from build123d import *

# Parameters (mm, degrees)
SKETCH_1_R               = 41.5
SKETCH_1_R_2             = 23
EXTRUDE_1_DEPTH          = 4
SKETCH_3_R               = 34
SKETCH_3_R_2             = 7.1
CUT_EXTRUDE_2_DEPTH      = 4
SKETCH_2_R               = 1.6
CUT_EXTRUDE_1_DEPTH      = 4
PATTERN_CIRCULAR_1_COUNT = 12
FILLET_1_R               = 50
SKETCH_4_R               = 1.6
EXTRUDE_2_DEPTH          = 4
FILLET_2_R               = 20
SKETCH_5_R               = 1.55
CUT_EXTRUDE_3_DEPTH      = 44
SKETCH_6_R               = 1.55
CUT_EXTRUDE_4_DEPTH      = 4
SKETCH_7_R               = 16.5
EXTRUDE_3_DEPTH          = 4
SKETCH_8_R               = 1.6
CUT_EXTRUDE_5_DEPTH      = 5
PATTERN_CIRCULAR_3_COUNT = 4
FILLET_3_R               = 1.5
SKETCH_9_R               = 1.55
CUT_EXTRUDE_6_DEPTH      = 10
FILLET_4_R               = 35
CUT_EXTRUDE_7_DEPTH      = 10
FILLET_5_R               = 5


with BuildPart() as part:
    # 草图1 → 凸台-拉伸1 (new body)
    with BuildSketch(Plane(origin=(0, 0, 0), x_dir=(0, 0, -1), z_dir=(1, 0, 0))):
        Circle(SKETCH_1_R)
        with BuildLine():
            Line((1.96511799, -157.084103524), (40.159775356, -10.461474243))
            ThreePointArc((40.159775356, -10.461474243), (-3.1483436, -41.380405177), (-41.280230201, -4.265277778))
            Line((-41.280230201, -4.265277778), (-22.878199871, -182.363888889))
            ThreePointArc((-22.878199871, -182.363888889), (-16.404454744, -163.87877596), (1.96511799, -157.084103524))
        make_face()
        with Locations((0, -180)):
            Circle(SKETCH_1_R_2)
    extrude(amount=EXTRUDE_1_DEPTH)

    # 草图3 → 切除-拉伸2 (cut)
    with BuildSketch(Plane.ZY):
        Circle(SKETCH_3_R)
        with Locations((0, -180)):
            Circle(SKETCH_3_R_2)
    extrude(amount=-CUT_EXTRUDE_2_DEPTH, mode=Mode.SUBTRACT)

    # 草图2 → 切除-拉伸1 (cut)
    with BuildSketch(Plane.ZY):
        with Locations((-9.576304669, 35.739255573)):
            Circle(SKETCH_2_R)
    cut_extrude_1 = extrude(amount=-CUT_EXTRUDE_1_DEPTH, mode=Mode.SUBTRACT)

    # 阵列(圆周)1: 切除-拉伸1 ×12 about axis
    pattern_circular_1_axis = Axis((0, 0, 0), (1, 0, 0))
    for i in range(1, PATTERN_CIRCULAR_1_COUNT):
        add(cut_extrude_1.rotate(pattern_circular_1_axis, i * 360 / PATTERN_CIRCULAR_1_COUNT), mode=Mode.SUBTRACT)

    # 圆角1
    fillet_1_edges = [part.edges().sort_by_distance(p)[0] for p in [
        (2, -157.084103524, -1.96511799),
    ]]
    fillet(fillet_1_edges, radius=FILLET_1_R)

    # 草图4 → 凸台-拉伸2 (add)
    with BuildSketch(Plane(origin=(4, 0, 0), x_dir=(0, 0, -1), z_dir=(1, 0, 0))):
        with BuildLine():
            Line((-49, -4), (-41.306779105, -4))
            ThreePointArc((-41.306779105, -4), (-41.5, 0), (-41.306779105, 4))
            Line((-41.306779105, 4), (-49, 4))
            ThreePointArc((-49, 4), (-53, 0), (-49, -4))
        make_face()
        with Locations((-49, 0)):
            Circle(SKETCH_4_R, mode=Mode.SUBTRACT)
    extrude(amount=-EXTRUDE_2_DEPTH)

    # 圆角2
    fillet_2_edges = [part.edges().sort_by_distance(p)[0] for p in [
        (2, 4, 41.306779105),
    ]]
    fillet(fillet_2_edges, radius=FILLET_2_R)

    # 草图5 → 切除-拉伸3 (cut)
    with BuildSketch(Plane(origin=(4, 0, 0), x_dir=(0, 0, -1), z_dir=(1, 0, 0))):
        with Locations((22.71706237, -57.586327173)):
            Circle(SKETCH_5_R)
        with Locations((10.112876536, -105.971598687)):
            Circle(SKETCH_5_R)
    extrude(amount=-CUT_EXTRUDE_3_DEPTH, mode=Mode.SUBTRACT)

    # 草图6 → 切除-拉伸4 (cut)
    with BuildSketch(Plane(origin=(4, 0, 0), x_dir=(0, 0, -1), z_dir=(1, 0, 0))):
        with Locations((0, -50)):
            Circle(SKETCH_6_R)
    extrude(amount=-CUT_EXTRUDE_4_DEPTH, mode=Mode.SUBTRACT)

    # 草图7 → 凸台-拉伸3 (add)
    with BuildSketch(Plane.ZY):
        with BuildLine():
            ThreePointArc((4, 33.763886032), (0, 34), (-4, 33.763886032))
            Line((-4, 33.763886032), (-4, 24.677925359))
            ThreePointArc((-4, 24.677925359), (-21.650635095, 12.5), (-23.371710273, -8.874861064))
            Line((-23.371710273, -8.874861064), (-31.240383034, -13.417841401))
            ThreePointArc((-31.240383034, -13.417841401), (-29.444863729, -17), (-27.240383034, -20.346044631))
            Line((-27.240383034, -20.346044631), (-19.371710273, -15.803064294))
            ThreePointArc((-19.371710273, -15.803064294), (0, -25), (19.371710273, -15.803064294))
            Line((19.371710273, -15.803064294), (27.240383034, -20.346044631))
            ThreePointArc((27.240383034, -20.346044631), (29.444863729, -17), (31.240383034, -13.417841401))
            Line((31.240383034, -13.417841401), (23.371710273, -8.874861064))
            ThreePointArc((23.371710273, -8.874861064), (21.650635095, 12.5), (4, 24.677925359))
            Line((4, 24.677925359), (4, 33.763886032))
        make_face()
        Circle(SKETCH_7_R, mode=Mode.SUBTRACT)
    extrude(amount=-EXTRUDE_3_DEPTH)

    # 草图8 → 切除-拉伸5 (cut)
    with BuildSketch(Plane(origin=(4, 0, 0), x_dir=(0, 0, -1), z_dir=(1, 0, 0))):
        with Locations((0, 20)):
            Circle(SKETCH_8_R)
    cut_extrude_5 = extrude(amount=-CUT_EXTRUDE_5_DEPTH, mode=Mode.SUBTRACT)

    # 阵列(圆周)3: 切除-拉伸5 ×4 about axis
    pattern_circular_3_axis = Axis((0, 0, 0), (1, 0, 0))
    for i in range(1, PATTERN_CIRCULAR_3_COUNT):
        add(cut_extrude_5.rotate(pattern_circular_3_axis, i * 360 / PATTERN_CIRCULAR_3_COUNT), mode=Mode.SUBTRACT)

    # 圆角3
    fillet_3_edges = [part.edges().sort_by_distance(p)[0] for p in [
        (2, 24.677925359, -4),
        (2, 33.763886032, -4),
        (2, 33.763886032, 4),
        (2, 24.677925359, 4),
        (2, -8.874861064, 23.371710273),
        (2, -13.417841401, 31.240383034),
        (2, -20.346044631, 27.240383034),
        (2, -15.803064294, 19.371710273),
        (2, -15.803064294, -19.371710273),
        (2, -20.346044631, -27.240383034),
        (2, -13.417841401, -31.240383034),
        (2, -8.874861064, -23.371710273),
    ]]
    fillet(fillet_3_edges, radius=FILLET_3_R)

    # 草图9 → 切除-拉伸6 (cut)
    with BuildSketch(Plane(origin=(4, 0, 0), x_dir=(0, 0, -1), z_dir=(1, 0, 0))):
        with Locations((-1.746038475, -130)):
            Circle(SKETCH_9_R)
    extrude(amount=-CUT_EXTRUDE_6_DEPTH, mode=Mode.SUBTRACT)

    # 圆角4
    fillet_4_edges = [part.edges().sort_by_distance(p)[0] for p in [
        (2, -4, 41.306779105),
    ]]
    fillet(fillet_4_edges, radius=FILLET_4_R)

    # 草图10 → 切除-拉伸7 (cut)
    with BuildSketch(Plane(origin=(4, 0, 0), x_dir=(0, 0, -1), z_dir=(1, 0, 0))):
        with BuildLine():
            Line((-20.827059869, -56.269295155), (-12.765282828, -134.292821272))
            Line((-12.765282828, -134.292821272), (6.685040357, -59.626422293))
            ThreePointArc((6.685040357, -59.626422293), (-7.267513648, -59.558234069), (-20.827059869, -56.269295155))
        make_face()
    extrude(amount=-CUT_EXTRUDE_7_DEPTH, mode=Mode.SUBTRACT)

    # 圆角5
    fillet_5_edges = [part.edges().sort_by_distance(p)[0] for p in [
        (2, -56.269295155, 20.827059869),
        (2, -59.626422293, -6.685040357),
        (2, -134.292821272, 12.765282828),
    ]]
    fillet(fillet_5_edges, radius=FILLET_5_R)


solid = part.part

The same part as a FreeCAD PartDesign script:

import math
import FreeCAD as App
import Part
import Sketcher

V = App.Vector
Q = App.Units.Quantity


def edges_at(feature, points):
    """Names of the edges that pass closest to the given points."""
    edges = feature.Shape.Edges
    near = lambda p: min(range(len(edges)), key=lambda i: edges[i].distToShape(Part.Vertex(*p))[0])
    return sorted({f"Edge{near(p) + 1}" for p in points})

doc = App.newDocument("Part")
body = doc.addObject("PartDesign::Body", "Body")

sketch1 = body.newObject("Sketcher::SketchObject", "Sketch")
sketch1.AttachmentSupport = (doc.getObject("YZ_Plane"), [""])
sketch1.MapMode = "FlatFace"
sketch1.addGeometry([
    Part.LineSegment(V(-4.265278, 41.28023, 0), V(-182.363889, 22.8782, 0)),
    Part.ArcOfCircle(Part.Circle(V(-180, 0, 0), V(0, 0, 1), 23), math.radians(95.89915), math.radians(355.098678)),
    Part.LineSegment(V(-157.084104, -1.965118, 0), V(-10.461474, -40.159775, 0)),
    Part.ArcOfCircle(Part.Circle(V(0, 0, 0), V(0, 0, 1), 41.5), math.radians(-104.60085), math.radians(95.89915)),
], False)
sketch1.addConstraint([
    Sketcher.Constraint("Tangent", 0, 2, 1, 1),
    Sketcher.Constraint("Coincident", 1, 2, 2, 1),
    Sketcher.Constraint("Tangent", 2, 2, 3, 1),
    Sketcher.Constraint("Tangent", 3, 2, 0, 1),
    Sketcher.Constraint("Coincident", 3, 3, -1, 1),
    Sketcher.Constraint("PointOnObject", 1, 3, -1),
    Sketcher.Constraint("Radius", 1, 23.0),
    Sketcher.Constraint("Radius", 3, 41.5),
    Sketcher.Constraint("DistanceX", 1, 3, -1, 1, 180.0),
    Sketcher.Constraint("DistanceX", 1, 2, 2, 2, 146.622629),
])
pad1 = body.newObject("PartDesign::Pad", "Pad")
pad1.Profile = sketch1
pad1.Length = 4

sketch2 = body.newObject("Sketcher::SketchObject", "Sketch001")
sketch2.AttachmentSupport = (doc.getObject("YZ_Plane"), [""])
sketch2.MapMode = "FlatFace"
sketch2.addGeometry([
    Part.Circle(V(0, 0, 0), V(0, 0, 1), 34),
    Part.Circle(V(-180, 0, 0), V(0, 0, 1), 7.1),
], False)
sketch2.addConstraint([
    Sketcher.Constraint("Coincident", 0, 3, -1, 1),
    Sketcher.Constraint("PointOnObject", 1, 3, -1),
    Sketcher.Constraint("Diameter", 0, 68.0),
    Sketcher.Constraint("Diameter", 1, 14.2),
    Sketcher.Constraint("DistanceX", 1, 3, -1, 1, 180.0),
])
pocket1 = body.newObject("PartDesign::Pocket", "Pocket")
pocket1.Profile = sketch2
pocket1.Length = 4
pocket1.Reversed = True

sketch3 = body.newObject("Sketcher::SketchObject", "Sketch002")
sketch3.AttachmentSupport = (doc.getObject("YZ_Plane"), [""])
sketch3.MapMode = "FlatFace"
sketch3.addGeometry(Part.Circle(V(35.739256, -9.576305, 0), V(0, 0, 1), 1.6), False)
sketch3.addConstraint([
    Sketcher.Constraint("Diameter", 0, 3.2),
    Sketcher.Constraint("DistanceX", -1, 1, 0, 3, 35.739256),
    Sketcher.Constraint("DistanceY", 0, 3, -1, 1, 9.576305),
])
pocket2 = body.newObject("PartDesign::Pocket", "Pocket001")
pocket2.Profile = sketch3
pocket2.Length = 4
pocket2.Reversed = True
doc.recompute()

polarpattern = body.newObject("PartDesign::PolarPattern", "PolarPattern")
polarpattern.Originals = [pocket2]
polarpattern.Axis = (doc.getObject("X_Axis"), [""])
polarpattern.Angle = 360
polarpattern.Occurrences = 12
body.Tip = polarpattern
doc.recompute()

fillet = body.newObject("PartDesign::Fillet", "Fillet")
fillet.Base = (polarpattern, edges_at(polarpattern, [(2, -157.084, -1.965)]))
fillet.Radius = 50

sketch4 = body.newObject("Sketcher::SketchObject", "Sketch003")
sketch4.AttachmentSupport = (doc.getObject("YZ_Plane"), [""])
sketch4.MapMode = "FlatFace"
sketch4.AttachmentOffset = App.Placement(V(0, 0, 4), App.Rotation())
sketch4.addGeometry([
    Part.LineSegment(V(-4, 49, 0), V(-4, 41.306779, 0)),
    Part.ArcOfCircle(Part.Circle(V(0, 0, 0), V(0, 0, 1), 41.5), math.radians(84.468928), math.radians(95.531072)),
    Part.LineSegment(V(4, 41.306779, 0), V(4, 49, 0)),
    Part.ArcOfCircle(Part.Circle(V(0, 49, 0), V(0, 0, 1), 4), math.radians(0), math.radians(180)),
    Part.Circle(V(0, 49, 0), V(0, 0, 1), 1.6),
], False)
sketch4.addConstraint([
    Sketcher.Constraint("Coincident", 0, 2, 1, 2),
    Sketcher.Constraint("Coincident", 1, 1, 2, 1),
    Sketcher.Constraint("Tangent", 2, 2, 3, 1),
    Sketcher.Constraint("Tangent", 3, 2, 0, 1),
    Sketcher.Constraint("Vertical", 0),
    Sketcher.Constraint("Vertical", 2),
    Sketcher.Constraint("Coincident", 1, 3, -1, 1),
    Sketcher.Constraint("Coincident", 4, 3, 3, 3),
    Sketcher.Constraint("PointOnObject", 3, 3, -2),
    Sketcher.Constraint("Radius", 3, 4.0),
    Sketcher.Constraint("Diameter", 4, 3.2),
    Sketcher.Constraint("Radius", 1, 41.5),
    Sketcher.Constraint("DistanceY", -1, 1, 3, 3, 49.0),
])
pad2 = body.newObject("PartDesign::Pad", "Pad001")
pad2.Profile = sketch4
pad2.Length = 4
pad2.Reversed = True
doc.recompute()

fillet2 = body.newObject("PartDesign::Fillet", "Fillet001")
fillet2.Base = (pad2, edges_at(pad2, [(2, 4, 41.307)]))
fillet2.Radius = 20

sketch5 = body.newObject("Sketcher::SketchObject", "Sketch004")
sketch5.AttachmentSupport = (doc.getObject("YZ_Plane"), [""])
sketch5.MapMode = "FlatFace"
sketch5.AttachmentOffset = App.Placement(V(0, 0, 4), App.Rotation())
sketch5.addGeometry([
    Part.Circle(V(-57.586327, -22.717062, 0), V(0, 0, 1), 1.55),
    Part.Circle(V(-105.971599, -10.112877, 0), V(0, 0, 1), 1.55),
], False)
sketch5.addConstraint([
    Sketcher.Constraint("Equal", 0, 1),
    Sketcher.Constraint("Diameter", 0, 3.1),
    Sketcher.Constraint("DistanceX", 1, 3, -1, 1, 105.971599),
    Sketcher.Constraint("DistanceX", 1, 3, 0, 3, 48.385272),
    Sketcher.Constraint("DistanceY", 0, 3, -1, 1, 22.717062),
    Sketcher.Constraint("DistanceY", 1, 3, -1, 1, 10.112877),
])
pocket3 = body.newObject("PartDesign::Pocket", "Pocket002")
pocket3.Profile = sketch5
pocket3.Length = 44

sketch6 = body.newObject("Sketcher::SketchObject", "Sketch005")
sketch6.AttachmentSupport = (doc.getObject("YZ_Plane"), [""])
sketch6.MapMode = "FlatFace"
sketch6.AttachmentOffset = App.Placement(V(0, 0, 4), App.Rotation())
sketch6.addGeometry(Part.Circle(V(-50, 0, 0), V(0, 0, 1), 1.55), False)
sketch6.addConstraint([
    Sketcher.Constraint("PointOnObject", 0, 3, -1),
    Sketcher.Constraint("Diameter", 0, 3.1),
    Sketcher.Constraint("DistanceX", 0, 3, -1, 1, 50.0),
])
pocket4 = body.newObject("PartDesign::Pocket", "Pocket003")
pocket4.Profile = sketch6
pocket4.Length = 4

sketch7 = body.newObject("Sketcher::SketchObject", "Sketch006")
sketch7.AttachmentSupport = (doc.getObject("YZ_Plane"), [""])
sketch7.MapMode = "FlatFace"
sketch7.addGeometry([
    Part.ArcOfCircle(Part.Circle(V(0, 0, 0), V(0, 0, 1), 34), math.radians(-6.756327), math.radians(6.756327)),
    Part.LineSegment(V(33.763886, -4, 0), V(24.677925, -4, 0)),
    Part.ArcOfCircle(Part.Circle(V(0, 0, 0), V(0, 0, 1), 25), math.radians(-110.793104), math.radians(-9.206896)),
    Part.LineSegment(V(-8.874861, -23.37171, 0), V(-13.417841, -31.240383, 0)),
    Part.ArcOfCircle(Part.Circle(V(0, 0, 0), V(0, 0, 1), 34), math.radians(-126.756327), math.radians(-113.243673)),
    Part.LineSegment(V(-20.346045, -27.240383, 0), V(-15.803064, -19.37171, 0)),
    Part.ArcOfCircle(Part.Circle(V(0, 0, 0), V(0, 0, 1), 25), math.radians(129.206896), math.radians(230.793104)),
    Part.LineSegment(V(-15.803064, 19.37171, 0), V(-20.346045, 27.240383, 0)),
    Part.ArcOfCircle(Part.Circle(V(0, 0, 0), V(0, 0, 1), 34), math.radians(113.243673), math.radians(126.756327)),
    Part.LineSegment(V(-13.417841, 31.240383, 0), V(-8.874861, 23.37171, 0)),
    Part.ArcOfCircle(Part.Circle(V(0, 0, 0), V(0, 0, 1), 25), math.radians(9.206896), math.radians(110.793104)),
    Part.LineSegment(V(24.677925, 4, 0), V(33.763886, 4, 0)),
    Part.Circle(V(0, 0, 0), V(0, 0, 1), 16.5),
], False)
sketch7.addConstraint([
    Sketcher.Constraint("Coincident", 0, 1, 1, 1),
    Sketcher.Constraint("Coincident", 1, 2, 2, 2),
    Sketcher.Constraint("Coincident", 2, 1, 3, 1),
    Sketcher.Constraint("Coincident", 3, 2, 4, 2),
    Sketcher.Constraint("Coincident", 4, 1, 5, 1),
    Sketcher.Constraint("Coincident", 5, 2, 6, 2),
    Sketcher.Constraint("Coincident", 6, 1, 7, 1),
    Sketcher.Constraint("Coincident", 7, 2, 8, 2),
    Sketcher.Constraint("Coincident", 8, 1, 9, 1),
    Sketcher.Constraint("Coincident", 9, 2, 10, 2),
    Sketcher.Constraint("Coincident", 10, 1, 11, 1),
    Sketcher.Constraint("Coincident", 11, 2, 0, 2),
    Sketcher.Constraint("Horizontal", 1),
    Sketcher.Constraint("Horizontal", 11),
    Sketcher.Constraint("Coincident", 0, 3, -1, 1),
    Sketcher.Constraint("Coincident", 2, 3, -1, 1),
    Sketcher.Constraint("Coincident", 4, 3, -1, 1),
    Sketcher.Constraint("Coincident", 6, 3, -1, 1),
    Sketcher.Constraint("Coincident", 8, 3, -1, 1),
    Sketcher.Constraint("Coincident", 10, 3, -1, 1),
    Sketcher.Constraint("Coincident", 12, 3, -1, 1),
    Sketcher.Constraint("Equal", 0, 4),
    Sketcher.Constraint("Equal", 2, 6),
    Sketcher.Constraint("Equal", 4, 8),
    Sketcher.Constraint("Equal", 6, 10),
    Sketcher.Constraint("Parallel", 3, 5),
    Sketcher.Constraint("Parallel", 7, 9),
    Sketcher.Constraint("Vertical", 5, 2, 6, 1),
    Sketcher.Constraint("Vertical", 4, 1, 7, 2),
    Sketcher.Constraint("Vertical", 3, 2, 8, 1),
    Sketcher.Constraint("Vertical", 1, 2, 10, 1),
    Sketcher.Constraint("Equal", 3, 5),
    Sketcher.Constraint("Diameter", 12, 33.0),
    Sketcher.Constraint("Radius", 0, 34.0),
    Sketcher.Constraint("Radius", 2, 25.0),
    Sketcher.Constraint("Angle", 3, Q("-120 deg")),
    Sketcher.Constraint("DistanceY", 0, 1, -1, 1, 4.0),
    Sketcher.Constraint("DistanceY", 3, 2, 4, 1, 4.0),
])
pad3 = body.newObject("PartDesign::Pad", "Pad002")
pad3.Profile = sketch7
pad3.Length = 4

sketch8 = body.newObject("Sketcher::SketchObject", "Sketch007")
sketch8.AttachmentSupport = (doc.getObject("YZ_Plane"), [""])
sketch8.MapMode = "FlatFace"
sketch8.AttachmentOffset = App.Placement(V(0, 0, 4), App.Rotation())
sketch8.addGeometry(Part.Circle(V(20, 0, 0), V(0, 0, 1), 1.6), False)
sketch8.addConstraint([
    Sketcher.Constraint("PointOnObject", 0, 3, -1),
    Sketcher.Constraint("Diameter", 0, 3.2),
    Sketcher.Constraint("DistanceX", -1, 1, 0, 3, 20.0),
])
pocket5 = body.newObject("PartDesign::Pocket", "Pocket004")
pocket5.Profile = sketch8
pocket5.Length = 5
doc.recompute()

polarpattern2 = body.newObject("PartDesign::PolarPattern", "PolarPattern001")
polarpattern2.Originals = [pocket5]
polarpattern2.Axis = (doc.getObject("X_Axis"), [""])
polarpattern2.Angle = 360
polarpattern2.Occurrences = 4
body.Tip = polarpattern2
doc.recompute()

fillet3 = body.newObject("PartDesign::Fillet", "Fillet002")
fillet3.Base = (polarpattern2, edges_at(polarpattern2, [
    (2, 24.678, -4),
    (2, 33.764, -4),
    (2, 33.764, 4),
    (2, 24.678, 4),
    (2, -8.875, 23.372),
    (2, -13.418, 31.24),
    (2, -20.346, 27.24),
    (2, -15.803, 19.372),
    (2, -15.803, -19.372),
    (2, -20.346, -27.24),
    (2, -13.418, -31.24),
    (2, -8.875, -23.372),
]))
fillet3.Radius = 1.5

sketch9 = body.newObject("Sketcher::SketchObject", "Sketch008")
sketch9.AttachmentSupport = (doc.getObject("YZ_Plane"), [""])
sketch9.MapMode = "FlatFace"
sketch9.AttachmentOffset = App.Placement(V(0, 0, 4), App.Rotation())
sketch9.addGeometry(Part.Circle(V(-130, 1.746038, 0), V(0, 0, 1), 1.55), False)
sketch9.addConstraint([
    Sketcher.Constraint("Diameter", 0, 3.1),
    Sketcher.Constraint("DistanceX", 0, 3, -1, 1, 130.0),
    Sketcher.Constraint("DistanceY", -1, 1, 0, 3, 1.746038),
])
pocket6 = body.newObject("PartDesign::Pocket", "Pocket005")
pocket6.Profile = sketch9
pocket6.Length = 10
doc.recompute()

fillet4 = body.newObject("PartDesign::Fillet", "Fillet003")
fillet4.Base = (pocket6, edges_at(pocket6, [(2, -4, 41.307)]))
fillet4.Radius = 35

sketch10 = body.newObject("Sketcher::SketchObject", "Sketch009")
sketch10.AttachmentSupport = (doc.getObject("YZ_Plane"), [""])
sketch10.MapMode = "FlatFace"
sketch10.AttachmentOffset = App.Placement(V(0, 0, 4), App.Rotation())
sketch10.addGeometry([
    Part.LineSegment(V(-56.269295, 20.82706, 0), V(-134.292821, 12.765283, 0)),
    Part.LineSegment(V(-134.292821, 12.765283, 0), V(-59.626422, -6.68504, 0)),
    Part.ArcOfCircle(Part.Circle(V(0, 0, 0), V(0, 0, 1), 60), math.radians(159.68888), math.radians(186.397025)),
], False)
sketch10.addConstraint([
    Sketcher.Constraint("Coincident", 0, 2, 1, 1),
    Sketcher.Constraint("Coincident", 1, 2, 2, 2),
    Sketcher.Constraint("Coincident", 2, 1, 0, 1),
    Sketcher.Constraint("Coincident", 2, 3, -1, 1),
    Sketcher.Constraint("Radius", 2, 60.0),
    Sketcher.Constraint("DistanceX", 0, 2, 1, 2, 74.666399),
    Sketcher.Constraint("DistanceY", 1, 2, 2, 1, 27.5121),
    Sketcher.Constraint("Distance", 0, 78.438912),
    Sketcher.Constraint("Distance", 1, 77.15819),
])
pocket7 = body.newObject("PartDesign::Pocket", "Pocket006")
pocket7.Profile = sketch10
pocket7.Length = 10
doc.recompute()

fillet5 = body.newObject("PartDesign::Fillet", "Fillet004")
fillet5.Base = (pocket7, edges_at(pocket7, [(2, -56.269, 20.827), (2, -59.626, -6.685), (2, -134.293, 12.765)]))
fillet5.Radius = 5

doc.recompute()
